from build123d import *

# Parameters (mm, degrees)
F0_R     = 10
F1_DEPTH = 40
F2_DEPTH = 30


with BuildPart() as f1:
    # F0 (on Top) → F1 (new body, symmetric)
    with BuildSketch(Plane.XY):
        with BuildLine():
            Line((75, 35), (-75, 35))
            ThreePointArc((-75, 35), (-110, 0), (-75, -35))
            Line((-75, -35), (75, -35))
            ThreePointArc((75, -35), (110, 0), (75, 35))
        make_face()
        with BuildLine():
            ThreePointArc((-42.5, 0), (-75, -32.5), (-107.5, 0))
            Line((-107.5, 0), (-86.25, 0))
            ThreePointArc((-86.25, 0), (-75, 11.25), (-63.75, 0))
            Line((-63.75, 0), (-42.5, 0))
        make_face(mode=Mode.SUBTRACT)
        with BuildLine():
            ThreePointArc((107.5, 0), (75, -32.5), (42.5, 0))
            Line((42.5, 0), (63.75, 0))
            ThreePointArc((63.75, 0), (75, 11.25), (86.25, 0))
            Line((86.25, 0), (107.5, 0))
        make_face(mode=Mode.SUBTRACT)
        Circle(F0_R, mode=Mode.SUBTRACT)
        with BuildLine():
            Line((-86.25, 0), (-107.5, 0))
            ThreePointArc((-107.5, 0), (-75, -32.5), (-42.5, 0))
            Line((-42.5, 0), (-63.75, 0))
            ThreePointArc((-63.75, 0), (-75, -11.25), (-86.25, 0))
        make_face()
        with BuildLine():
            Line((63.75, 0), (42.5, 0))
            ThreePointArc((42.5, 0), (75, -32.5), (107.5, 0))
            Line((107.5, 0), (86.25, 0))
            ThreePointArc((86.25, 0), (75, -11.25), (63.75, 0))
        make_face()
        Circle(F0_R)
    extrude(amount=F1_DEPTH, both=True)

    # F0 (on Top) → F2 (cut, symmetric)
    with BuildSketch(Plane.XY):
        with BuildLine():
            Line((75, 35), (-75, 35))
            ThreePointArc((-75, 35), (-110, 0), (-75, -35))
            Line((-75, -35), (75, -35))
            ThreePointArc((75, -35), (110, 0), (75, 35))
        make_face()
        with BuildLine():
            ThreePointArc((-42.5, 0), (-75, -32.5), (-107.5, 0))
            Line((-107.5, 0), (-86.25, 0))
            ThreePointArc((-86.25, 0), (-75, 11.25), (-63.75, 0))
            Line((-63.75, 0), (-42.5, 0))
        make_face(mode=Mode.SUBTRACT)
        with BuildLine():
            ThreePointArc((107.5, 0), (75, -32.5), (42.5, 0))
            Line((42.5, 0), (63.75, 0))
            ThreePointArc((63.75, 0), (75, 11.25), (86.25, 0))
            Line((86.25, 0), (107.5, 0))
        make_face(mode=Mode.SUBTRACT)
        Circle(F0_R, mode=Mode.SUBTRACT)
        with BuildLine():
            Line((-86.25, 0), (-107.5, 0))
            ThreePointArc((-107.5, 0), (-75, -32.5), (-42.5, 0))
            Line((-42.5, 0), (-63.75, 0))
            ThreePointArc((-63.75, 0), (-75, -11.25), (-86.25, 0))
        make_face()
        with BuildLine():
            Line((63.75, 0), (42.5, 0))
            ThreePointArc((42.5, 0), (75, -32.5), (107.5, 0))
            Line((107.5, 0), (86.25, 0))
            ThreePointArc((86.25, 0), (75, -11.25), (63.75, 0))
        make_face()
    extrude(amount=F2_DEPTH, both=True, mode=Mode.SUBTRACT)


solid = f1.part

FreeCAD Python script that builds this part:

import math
import FreeCAD as App
import Part
import Sketcher

doc = App.newDocument("Part")
body = doc.addObject("PartDesign::Body", "Body")

sketch1 = body.newObject("Sketcher::SketchObject", "Sketch")
sketch1.AttachmentSupport = (doc.getObject("XY_Plane"), [""])
sketch1.MapMode = "FlatFace"
sketch1.addGeometry([
    Part.LineSegment(App.Vector(75, 35, 0), App.Vector(-75, 35, 0)),
    Part.ArcOfCircle(Part.Circle(App.Vector(-75, 0, 0), App.Vector(0, 0, 1), 35), math.radians(90), math.radians(270)),
    Part.LineSegment(App.Vector(-75, -35, 0), App.Vector(75, -35, 0)),
    Part.ArcOfCircle(Part.Circle(App.Vector(75, 0, 0), App.Vector(0, 0, 1), 35), math.radians(-90), math.radians(90)),
    Part.Circle(App.Vector(-75, 0, 0), App.Vector(0, 0, 1), 11),
    Part.Circle(App.Vector(75, 0, 0), App.Vector(0, 0, 1), 11),
], False)
sketch1.addConstraint([
    Sketcher.Constraint("Tangent", 0, 2, 1, 1),
    Sketcher.Constraint("Tangent", 1, 2, 2, 1),
    Sketcher.Constraint("Tangent", 2, 2, 3, 1),
    Sketcher.Constraint("Tangent", 3, 2, 0, 1),
    Sketcher.Constraint("Horizontal", 0),
    Sketcher.Constraint("Horizontal", 2),
    Sketcher.Constraint("Coincident", 4, 3, 1, 3),
    Sketcher.Constraint("Coincident", 5, 3, 3, 3),
    Sketcher.Constraint("Equal", 4, 5),
    Sketcher.Constraint("Symmetric", 1, 3, 3, 3, -1, 1),
    Sketcher.Constraint("Radius", 1, 35.0),
    Sketcher.Constraint("Diameter", 4, 22.5),
    Sketcher.Constraint("DistanceX", 0, 2, 0, 1, 150.0),
])
pad1 = body.newObject("PartDesign::Pad", "Pad")
pad1.Profile = sketch1
pad1.Length = 80
pad1.Midplane = True

sketch2 = body.newObject("Sketcher::SketchObject", "Sketch001")
sketch2.AttachmentSupport = (doc.getObject("XY_Plane"), [""])
sketch2.MapMode = "FlatFace"
sketch2.addGeometry([
    Part.LineSegment(App.Vector(75, 35, 0), App.Vector(-75, 35, 0)),
    Part.ArcOfCircle(Part.Circle(App.Vector(-75, 0, 0), App.Vector(0, 0, 1), 35), math.radians(90), math.radians(270)),
    Part.LineSegment(App.Vector(-75, -35, 0), App.Vector(75, -35, 0)),
    Part.ArcOfCircle(Part.Circle(App.Vector(75, 0, 0), App.Vector(0, 0, 1), 35), math.radians(-90), math.radians(90)),
    Part.Circle(App.Vector(-75, 0, 0), App.Vector(0, 0, 1), 11),
    Part.Circle(App.Vector(0, 0, 0), App.Vector(0, 0, 1), 10),
    Part.Circle(App.Vector(75, 0, 0), App.Vector(0, 0, 1), 11),
], False)
sketch2.addConstraint([
    Sketcher.Constraint("Tangent", 0, 2, 1, 1),
    Sketcher.Constraint("Tangent", 1, 2, 2, 1),
    Sketcher.Constraint("Tangent", 2, 2, 3, 1),
    Sketcher.Constraint("Tangent", 3, 2, 0, 1),
    Sketcher.Constraint("Horizontal", 0),
    Sketcher.Constraint("Horizontal", 2),
    Sketcher.Constraint("Coincident", 5, 3, -1, 1),
    Sketcher.Constraint("Coincident", 4, 3, 1, 3),
    Sketcher.Constraint("Coincident", 6, 3, 3, 3),
    Sketcher.Constraint("Equal", 4, 6),
    Sketcher.Constraint("Symmetric", 1, 3, 3, 3, -1, 1),
    Sketcher.Constraint("Diameter", 5, 20.0),
    Sketcher.Constraint("Radius", 1, 35.0),
    Sketcher.Constraint("Diameter", 4, 22.5),
    Sketcher.Constraint("DistanceX", 0, 2, 0, 1, 150.0),
])
pocket1 = body.newObject("PartDesign::Pocket", "Pocket")
pocket1.Profile = sketch2
pocket1.Length = 60
pocket1.Midplane = True

doc.recompute()
